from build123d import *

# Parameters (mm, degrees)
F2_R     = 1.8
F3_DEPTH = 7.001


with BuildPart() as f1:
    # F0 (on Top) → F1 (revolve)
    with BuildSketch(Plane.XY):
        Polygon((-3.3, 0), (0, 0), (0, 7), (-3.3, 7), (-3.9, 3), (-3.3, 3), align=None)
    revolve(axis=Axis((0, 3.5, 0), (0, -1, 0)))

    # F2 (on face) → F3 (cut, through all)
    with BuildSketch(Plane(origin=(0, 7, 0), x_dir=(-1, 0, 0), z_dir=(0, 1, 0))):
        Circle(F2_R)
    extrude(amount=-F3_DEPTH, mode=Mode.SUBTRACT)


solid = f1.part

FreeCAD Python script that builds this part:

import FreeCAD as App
import Part
import Sketcher

V = App.Vector
Q = App.Units.Quantity


def add_polygon(sketch, points):
    """Adds a closed chain of lines whose ends are joined by coincident constraints."""
    first, n = sketch.GeometryCount, len(points)
    for a, b in zip(points, points[1:] + points[:1]):
        sketch.addGeometry(Part.LineSegment(App.Vector(*a, 0), App.Vector(*b, 0)), False)
    for i in range(n):
        sketch.addConstraint(Sketcher.Constraint("Coincident", first + i, 2, first + (i + 1) % n, 1))

doc = App.newDocument("Part")
body = doc.addObject("PartDesign::Body", "Body")

sketch1 = body.newObject("Sketcher::SketchObject", "Sketch")
sketch1.AttachmentSupport = (doc.getObject("XY_Plane"), [""])
sketch1.MapMode = "FlatFace"
add_polygon(sketch1, [(-3.3, 0), (0, 0), (0, 7), (-3.3, 7), (-3.9, 3), (-3.3, 3)])
sketch1.addConstraint([
    Sketcher.Constraint("Horizontal", 0),
    Sketcher.Constraint("Vertical", 1),
    Sketcher.Constraint("Horizontal", 2),
    Sketcher.Constraint("Horizontal", 4),
    Sketcher.Constraint("Vertical", 5),
    Sketcher.Constraint("Coincident", 0, 2, -1, 1),
    Sketcher.Constraint("Vertical", 2, 2, 4, 2),
    Sketcher.Constraint("DistanceY", 1, 1, 1, 2, Q("7 mm")),
    Sketcher.Constraint("DistanceY", 5, 2, 5, 1, Q("3 mm")),
    Sketcher.Constraint("DistanceX", 0, 1, 0, 2, Q("3.3 mm")),
    Sketcher.Constraint("DistanceX", 4, 1, 4, 2, Q("0.6 mm")),
])
revolution = body.newObject("PartDesign::Revolution", "Revolution")
revolution.Profile = sketch1
revolution.ReferenceAxis = (sketch1, ["V_Axis"])
revolution.Angle = 360

sketch2 = body.newObject("Sketcher::SketchObject", "Sketch001")
sketch2.AttachmentSupport = (doc.getObject("XZ_Plane"), [""])
sketch2.MapMode = "FlatFace"
sketch2.AttachmentOffset = App.Placement(V(0, 0, -7), App.Rotation())
sketch2.addGeometry(Part.Circle(V(0, 0, 0), V(0, 0, 1), 1.8), False)
sketch2.addConstraint([
    Sketcher.Constraint("Coincident", 0, 3, -1, 1),
    Sketcher.Constraint("Diameter", 0, Q("3.6 mm")),
])
pocket1 = body.newObject("PartDesign::Pocket", "Pocket")
pocket1.Profile = sketch2
pocket1.Type = "ThroughAll"
pocket1.Reversed = True

doc.recompute()
